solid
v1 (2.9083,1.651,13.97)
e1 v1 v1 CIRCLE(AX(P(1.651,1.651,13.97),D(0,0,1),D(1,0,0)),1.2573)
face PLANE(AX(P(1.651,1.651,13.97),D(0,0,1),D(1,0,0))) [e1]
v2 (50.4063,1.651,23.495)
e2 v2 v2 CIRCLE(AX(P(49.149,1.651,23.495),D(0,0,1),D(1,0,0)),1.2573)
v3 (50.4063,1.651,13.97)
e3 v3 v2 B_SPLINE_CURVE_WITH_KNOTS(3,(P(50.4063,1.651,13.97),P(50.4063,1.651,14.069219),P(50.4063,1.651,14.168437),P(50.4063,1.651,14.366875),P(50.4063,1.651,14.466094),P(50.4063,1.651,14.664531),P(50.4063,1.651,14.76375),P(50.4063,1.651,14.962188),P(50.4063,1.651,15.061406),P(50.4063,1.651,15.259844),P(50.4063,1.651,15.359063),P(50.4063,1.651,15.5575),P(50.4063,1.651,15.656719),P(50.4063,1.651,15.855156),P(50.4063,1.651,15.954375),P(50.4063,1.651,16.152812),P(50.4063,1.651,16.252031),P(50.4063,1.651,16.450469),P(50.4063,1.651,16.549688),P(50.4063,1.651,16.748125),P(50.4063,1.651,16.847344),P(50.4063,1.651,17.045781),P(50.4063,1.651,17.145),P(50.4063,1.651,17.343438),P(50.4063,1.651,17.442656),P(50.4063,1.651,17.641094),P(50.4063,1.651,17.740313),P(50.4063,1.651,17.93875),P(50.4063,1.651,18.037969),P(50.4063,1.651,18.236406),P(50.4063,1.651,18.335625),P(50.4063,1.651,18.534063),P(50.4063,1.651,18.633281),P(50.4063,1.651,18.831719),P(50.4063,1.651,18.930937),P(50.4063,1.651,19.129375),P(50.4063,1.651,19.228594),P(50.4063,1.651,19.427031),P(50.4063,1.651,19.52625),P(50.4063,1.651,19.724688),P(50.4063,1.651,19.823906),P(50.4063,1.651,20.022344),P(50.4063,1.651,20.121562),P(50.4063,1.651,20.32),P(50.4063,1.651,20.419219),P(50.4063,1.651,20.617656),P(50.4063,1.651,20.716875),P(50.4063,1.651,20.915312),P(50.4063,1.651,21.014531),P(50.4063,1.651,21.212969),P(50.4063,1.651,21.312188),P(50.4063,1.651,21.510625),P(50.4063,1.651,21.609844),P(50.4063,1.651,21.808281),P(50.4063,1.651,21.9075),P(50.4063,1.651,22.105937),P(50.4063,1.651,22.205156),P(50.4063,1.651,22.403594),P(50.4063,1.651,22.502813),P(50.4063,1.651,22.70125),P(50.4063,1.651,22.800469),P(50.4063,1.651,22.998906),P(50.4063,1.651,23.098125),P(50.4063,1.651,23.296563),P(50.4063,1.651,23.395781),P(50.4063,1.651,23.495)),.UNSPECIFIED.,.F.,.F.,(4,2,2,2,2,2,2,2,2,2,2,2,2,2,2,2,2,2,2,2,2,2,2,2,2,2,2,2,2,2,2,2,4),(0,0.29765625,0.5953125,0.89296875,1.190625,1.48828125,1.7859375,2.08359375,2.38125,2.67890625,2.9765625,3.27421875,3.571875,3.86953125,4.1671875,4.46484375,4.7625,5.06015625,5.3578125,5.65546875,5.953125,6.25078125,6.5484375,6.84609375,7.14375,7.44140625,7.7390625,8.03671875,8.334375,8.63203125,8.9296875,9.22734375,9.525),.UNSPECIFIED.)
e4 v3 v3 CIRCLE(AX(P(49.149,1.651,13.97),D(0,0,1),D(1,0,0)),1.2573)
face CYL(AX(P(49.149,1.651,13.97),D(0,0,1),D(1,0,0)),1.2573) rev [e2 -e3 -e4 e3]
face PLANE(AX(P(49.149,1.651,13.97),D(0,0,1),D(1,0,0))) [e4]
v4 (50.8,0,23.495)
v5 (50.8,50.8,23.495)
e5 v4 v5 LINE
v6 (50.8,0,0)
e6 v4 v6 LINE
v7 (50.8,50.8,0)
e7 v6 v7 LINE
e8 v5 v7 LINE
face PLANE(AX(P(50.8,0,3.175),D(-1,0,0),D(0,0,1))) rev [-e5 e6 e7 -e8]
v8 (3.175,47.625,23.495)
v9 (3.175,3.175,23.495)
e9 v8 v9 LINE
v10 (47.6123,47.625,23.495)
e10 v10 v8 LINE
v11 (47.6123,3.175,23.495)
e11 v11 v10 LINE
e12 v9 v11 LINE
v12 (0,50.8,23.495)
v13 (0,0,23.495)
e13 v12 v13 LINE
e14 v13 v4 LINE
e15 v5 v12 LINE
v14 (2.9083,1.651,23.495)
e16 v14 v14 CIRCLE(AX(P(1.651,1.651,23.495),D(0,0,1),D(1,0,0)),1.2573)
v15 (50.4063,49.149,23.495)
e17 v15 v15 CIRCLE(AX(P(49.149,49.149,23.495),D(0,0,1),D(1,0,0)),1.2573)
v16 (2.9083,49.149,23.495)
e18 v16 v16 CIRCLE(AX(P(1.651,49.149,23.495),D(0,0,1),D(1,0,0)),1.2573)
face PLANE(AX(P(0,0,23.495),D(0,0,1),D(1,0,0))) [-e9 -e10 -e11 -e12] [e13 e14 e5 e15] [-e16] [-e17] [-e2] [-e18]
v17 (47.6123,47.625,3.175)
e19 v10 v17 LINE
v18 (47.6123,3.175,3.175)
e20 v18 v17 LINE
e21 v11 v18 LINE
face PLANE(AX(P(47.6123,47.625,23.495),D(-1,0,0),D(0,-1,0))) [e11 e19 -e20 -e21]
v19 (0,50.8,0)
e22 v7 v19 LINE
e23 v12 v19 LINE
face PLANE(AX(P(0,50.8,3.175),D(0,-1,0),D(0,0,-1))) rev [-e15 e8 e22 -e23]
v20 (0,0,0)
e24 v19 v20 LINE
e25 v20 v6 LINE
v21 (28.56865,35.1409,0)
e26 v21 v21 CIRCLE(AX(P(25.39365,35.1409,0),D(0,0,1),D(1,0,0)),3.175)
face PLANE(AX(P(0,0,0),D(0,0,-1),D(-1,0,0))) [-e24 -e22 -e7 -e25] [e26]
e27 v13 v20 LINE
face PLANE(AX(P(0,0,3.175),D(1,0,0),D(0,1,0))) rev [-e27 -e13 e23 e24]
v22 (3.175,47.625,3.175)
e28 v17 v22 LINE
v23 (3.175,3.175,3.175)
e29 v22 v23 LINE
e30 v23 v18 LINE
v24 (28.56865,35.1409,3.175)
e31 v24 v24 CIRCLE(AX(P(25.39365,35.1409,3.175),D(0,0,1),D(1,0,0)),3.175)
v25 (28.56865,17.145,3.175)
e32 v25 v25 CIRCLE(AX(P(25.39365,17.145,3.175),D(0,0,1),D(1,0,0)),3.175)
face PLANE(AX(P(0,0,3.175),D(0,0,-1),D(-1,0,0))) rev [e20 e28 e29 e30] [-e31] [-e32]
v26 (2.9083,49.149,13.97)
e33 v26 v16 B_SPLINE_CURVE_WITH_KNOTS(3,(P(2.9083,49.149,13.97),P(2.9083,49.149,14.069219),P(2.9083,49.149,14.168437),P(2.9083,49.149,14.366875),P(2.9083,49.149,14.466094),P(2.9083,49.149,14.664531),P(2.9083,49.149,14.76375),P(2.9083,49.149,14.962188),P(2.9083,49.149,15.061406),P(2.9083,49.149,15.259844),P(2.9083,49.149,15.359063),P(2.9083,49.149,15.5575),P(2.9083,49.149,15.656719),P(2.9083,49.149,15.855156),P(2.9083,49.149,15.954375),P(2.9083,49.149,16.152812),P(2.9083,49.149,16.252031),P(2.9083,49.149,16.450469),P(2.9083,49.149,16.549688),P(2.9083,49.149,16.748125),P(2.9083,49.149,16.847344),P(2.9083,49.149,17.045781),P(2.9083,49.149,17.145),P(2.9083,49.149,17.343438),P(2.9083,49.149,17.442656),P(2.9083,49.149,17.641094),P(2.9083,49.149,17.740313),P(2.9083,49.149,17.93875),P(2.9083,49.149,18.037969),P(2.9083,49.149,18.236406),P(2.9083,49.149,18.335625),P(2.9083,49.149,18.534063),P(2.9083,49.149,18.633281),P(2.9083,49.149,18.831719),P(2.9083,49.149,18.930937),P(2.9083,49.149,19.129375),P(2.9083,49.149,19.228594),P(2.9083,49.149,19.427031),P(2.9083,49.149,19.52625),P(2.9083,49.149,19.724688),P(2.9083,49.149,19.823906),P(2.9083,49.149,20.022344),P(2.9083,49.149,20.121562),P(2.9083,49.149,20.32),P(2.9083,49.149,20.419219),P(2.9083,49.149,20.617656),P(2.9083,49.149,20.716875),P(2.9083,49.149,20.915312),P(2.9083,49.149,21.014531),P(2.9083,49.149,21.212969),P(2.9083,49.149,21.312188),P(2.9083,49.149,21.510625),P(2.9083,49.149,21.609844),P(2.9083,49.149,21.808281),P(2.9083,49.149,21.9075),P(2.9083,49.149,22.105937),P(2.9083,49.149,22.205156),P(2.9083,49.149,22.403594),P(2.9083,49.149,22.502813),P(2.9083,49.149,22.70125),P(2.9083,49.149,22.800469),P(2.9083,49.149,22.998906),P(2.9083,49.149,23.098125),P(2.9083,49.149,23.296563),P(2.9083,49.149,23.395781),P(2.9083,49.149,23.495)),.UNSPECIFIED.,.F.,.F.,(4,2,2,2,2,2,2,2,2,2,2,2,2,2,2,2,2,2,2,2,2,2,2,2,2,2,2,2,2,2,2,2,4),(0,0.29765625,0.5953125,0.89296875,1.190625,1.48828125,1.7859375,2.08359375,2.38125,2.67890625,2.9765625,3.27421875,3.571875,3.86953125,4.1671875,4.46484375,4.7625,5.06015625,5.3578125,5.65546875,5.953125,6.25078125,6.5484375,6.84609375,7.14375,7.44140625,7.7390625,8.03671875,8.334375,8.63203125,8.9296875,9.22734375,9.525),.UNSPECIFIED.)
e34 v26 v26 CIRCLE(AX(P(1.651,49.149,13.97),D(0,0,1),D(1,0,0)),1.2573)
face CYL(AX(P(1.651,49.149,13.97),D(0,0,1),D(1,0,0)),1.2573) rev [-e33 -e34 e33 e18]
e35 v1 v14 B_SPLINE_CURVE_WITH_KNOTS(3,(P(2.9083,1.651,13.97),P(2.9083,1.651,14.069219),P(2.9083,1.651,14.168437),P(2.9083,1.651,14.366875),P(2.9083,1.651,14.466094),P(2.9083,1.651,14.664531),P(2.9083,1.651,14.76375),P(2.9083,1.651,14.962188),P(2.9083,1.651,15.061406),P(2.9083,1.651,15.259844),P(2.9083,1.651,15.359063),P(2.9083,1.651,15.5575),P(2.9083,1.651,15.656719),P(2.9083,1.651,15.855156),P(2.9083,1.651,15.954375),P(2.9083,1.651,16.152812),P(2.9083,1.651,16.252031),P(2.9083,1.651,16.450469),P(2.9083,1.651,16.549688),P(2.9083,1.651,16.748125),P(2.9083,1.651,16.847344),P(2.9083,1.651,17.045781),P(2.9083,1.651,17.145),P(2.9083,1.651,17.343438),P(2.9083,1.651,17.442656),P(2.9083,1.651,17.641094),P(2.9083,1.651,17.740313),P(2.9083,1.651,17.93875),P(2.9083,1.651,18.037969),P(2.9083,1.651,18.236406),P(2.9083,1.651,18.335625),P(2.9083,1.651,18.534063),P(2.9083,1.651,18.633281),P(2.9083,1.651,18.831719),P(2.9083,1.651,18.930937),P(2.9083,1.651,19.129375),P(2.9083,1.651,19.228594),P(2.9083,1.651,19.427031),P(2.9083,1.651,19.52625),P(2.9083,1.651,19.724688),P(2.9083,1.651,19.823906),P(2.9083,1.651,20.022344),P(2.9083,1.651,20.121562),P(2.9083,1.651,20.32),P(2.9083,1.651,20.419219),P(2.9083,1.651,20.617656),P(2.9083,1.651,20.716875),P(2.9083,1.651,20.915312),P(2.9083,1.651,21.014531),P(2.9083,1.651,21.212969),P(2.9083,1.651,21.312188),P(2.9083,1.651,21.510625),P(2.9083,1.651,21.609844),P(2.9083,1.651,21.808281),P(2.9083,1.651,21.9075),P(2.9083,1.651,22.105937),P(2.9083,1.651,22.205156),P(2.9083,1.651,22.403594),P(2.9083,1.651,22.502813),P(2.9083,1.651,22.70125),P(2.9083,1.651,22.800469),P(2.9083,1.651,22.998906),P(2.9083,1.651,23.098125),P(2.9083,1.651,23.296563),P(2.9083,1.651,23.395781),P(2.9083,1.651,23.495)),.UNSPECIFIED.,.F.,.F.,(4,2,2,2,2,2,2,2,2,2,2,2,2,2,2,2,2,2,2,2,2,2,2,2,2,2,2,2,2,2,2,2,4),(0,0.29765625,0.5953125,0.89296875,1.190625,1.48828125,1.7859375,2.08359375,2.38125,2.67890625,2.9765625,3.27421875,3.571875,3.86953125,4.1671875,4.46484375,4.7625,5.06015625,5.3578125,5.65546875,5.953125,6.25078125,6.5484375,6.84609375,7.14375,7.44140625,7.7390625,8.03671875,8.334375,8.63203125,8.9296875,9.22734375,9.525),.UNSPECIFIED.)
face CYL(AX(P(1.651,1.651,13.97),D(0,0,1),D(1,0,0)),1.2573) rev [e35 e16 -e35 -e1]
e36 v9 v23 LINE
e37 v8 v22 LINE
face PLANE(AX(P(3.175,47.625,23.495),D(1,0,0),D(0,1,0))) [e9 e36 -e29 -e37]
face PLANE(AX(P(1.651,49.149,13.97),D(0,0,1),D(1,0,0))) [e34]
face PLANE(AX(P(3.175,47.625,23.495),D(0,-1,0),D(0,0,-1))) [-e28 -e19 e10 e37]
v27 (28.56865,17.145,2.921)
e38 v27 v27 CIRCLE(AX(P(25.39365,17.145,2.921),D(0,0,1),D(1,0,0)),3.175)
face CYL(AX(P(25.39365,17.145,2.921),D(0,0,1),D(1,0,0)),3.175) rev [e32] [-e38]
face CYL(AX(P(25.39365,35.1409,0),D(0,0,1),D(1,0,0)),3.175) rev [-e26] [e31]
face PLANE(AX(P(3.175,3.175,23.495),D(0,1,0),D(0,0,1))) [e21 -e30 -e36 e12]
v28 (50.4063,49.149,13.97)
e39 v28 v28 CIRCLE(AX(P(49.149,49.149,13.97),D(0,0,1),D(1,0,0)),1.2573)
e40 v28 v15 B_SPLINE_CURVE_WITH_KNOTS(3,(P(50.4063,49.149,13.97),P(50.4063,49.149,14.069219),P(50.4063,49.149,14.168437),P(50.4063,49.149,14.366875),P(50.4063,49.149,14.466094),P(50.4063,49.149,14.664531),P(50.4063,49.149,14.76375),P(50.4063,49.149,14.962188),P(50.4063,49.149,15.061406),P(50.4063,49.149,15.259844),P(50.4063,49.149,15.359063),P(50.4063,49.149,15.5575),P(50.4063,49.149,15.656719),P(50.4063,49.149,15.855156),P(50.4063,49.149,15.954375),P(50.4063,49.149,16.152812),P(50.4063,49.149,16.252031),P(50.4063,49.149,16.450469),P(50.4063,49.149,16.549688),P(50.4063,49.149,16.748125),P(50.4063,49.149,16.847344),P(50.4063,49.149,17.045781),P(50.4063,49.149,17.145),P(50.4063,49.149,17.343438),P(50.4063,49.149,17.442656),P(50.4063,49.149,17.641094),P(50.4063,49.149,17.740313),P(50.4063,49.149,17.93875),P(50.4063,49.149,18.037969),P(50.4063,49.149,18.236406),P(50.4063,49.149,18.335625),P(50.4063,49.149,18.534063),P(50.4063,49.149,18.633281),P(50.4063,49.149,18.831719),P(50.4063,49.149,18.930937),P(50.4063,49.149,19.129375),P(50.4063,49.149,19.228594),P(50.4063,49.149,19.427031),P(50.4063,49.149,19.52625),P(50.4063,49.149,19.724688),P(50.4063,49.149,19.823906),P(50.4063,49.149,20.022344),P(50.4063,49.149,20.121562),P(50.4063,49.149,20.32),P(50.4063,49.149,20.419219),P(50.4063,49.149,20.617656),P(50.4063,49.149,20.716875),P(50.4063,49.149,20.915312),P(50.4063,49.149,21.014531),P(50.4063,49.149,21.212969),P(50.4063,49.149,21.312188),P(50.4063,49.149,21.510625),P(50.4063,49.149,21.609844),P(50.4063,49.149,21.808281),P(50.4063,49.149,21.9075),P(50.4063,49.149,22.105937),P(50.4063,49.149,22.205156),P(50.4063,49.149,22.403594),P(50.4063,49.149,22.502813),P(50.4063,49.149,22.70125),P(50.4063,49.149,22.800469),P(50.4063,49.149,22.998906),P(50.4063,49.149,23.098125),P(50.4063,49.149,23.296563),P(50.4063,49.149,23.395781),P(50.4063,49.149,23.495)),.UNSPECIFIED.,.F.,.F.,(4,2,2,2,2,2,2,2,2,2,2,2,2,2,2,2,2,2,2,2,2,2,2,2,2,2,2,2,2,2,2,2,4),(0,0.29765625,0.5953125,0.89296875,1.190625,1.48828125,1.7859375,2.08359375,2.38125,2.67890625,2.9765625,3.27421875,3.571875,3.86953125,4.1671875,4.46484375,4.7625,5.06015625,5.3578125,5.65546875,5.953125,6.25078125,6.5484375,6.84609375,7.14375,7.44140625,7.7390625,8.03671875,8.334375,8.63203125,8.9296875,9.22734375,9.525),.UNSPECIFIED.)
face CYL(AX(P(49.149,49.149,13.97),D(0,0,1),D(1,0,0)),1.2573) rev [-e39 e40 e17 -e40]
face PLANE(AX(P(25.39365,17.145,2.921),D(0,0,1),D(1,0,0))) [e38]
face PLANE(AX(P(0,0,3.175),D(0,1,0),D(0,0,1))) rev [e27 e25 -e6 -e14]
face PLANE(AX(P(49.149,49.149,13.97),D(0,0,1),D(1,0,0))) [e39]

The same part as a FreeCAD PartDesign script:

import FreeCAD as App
import Part
import Sketcher

V = App.Vector
Q = App.Units.Quantity


def add_polygon(sketch, points):
    """Adds a closed chain of lines whose ends are joined by coincident constraints."""
    first, n = sketch.GeometryCount, len(points)
    for a, b in zip(points, points[1:] + points[:1]):
        sketch.addGeometry(Part.LineSegment(App.Vector(*a, 0), App.Vector(*b, 0)), False)
    for i in range(n):
        sketch.addConstraint(Sketcher.Constraint("Coincident", first + i, 2, first + (i + 1) % n, 1))

doc = App.newDocument("Part")
params = doc.addObject("Spreadsheet::Sheet", "Params")
for row, (alias, value) in enumerate([
    ("sketch1_width", "2 in"),
    ("pad1_length", "0.125 in"),
    ("sketch2_width", "2 in"),
    ("sketch2_height", "1.75 in"),
    ("pad2_length", "0.8 in"),
    ("sketch3_diameter", "0.25 in"),
    ("pocket1_length", "0.01 in"),
    ("sketch4_diameter", "0.099 in"),
    ("pocket2_length", "0.375 in"),
    ("sketch5_diameter", "0.25 in"),
], start=1):
    params.set(f"A{row}", alias)
    params.set(f"B{row}", "=" + value)
    params.setAlias(f"B{row}", alias)

body = doc.addObject("PartDesign::Body", "Body")

sketch1 = doc.addObject("Sketcher::SketchObject", "Sketch")
body.addObject(sketch1)
sketch1.AttachmentSupport = (doc.XY_Plane, [""])
sketch1.MapMode = "FlatFace"
add_polygon(sketch1, [(0, 51), (0, 0), (51, 0), (51, 51)])
sketch1.addConstraint(Sketcher.Constraint("Vertical", 0))
sketch1.addConstraint(Sketcher.Constraint("Horizontal", 1))
sketch1.addConstraint(Sketcher.Constraint("Vertical", 2))
sketch1.addConstraint(Sketcher.Constraint("Horizontal", 3))
sketch1.addConstraint(Sketcher.Constraint("Coincident", 0, 2, -1, 1))
sketch1.addConstraint(Sketcher.Constraint("Equal", 3, 0))
sketch1.addConstraint(Sketcher.Constraint("DistanceX", 1, 1, 1, 2, Q("2 in")))
sketch1.setExpression("Constraints[10]", "Params.sketch1_width")
pad1 = doc.addObject("PartDesign::Pad", "Pad")
body.addObject(pad1)
pad1.Profile = sketch1
pad1.setExpression("Length", "Params.pad1_length")

sketch2 = doc.addObject("Sketcher::SketchObject", "Sketch001")
body.addObject(sketch2)
sketch2.AttachmentSupport = (doc.XY_Plane, [""])
sketch2.MapMode = "FlatFace"
sketch2.AttachmentOffset = App.Placement(V(0, 0, 0.125 * 25.4), App.Rotation())
add_polygon(sketch2, [(0, 51), (0, 0), (51, 0), (51, 51)])
add_polygon(sketch2, [(48, 3), (3, 3), (3, 48), (48, 48)])
sketch2.addConstraint(Sketcher.Constraint("Vertical", 0))
sketch2.addConstraint(Sketcher.Constraint("Horizontal", 1))
sketch2.addConstraint(Sketcher.Constraint("Vertical", 2))
sketch2.addConstraint(Sketcher.Constraint("Horizontal", 3))
sketch2.addConstraint(Sketcher.Constraint("Horizontal", 4))
sketch2.addConstraint(Sketcher.Constraint("Vertical", 5))
sketch2.addConstraint(Sketcher.Constraint("Horizontal", 6))
sketch2.addConstraint(Sketcher.Constraint("Vertical", 7))
sketch2.addConstraint(Sketcher.Constraint("Coincident", 0, 2, -1, 1))
sketch2.addConstraint(Sketcher.Constraint("Equal", 3, 0))
sketch2.addConstraint(Sketcher.Constraint("DistanceX", 1, 1, 1, 2, Q("2 in")))
sketch2.addConstraint(Sketcher.Constraint("DistanceY", 5, 1, 5, 2, Q("1.75 in")))
sketch2.addConstraint(Sketcher.Constraint("DistanceX", 4, 2, 4, 1, Q("1.7495 in")))
sketch2.addConstraint(Sketcher.Constraint("DistanceX", -1, 1, 4, 2, Q("0.125 in")))
sketch2.addConstraint(Sketcher.Constraint("DistanceY", -1, 1, 4, 2, Q("0.125 in")))
sketch2.setExpression("Constraints[18]", "Params.sketch2_width")
sketch2.setExpression("Constraints[19]", "Params.sketch2_height")
pad2 = doc.addObject("PartDesign::Pad", "Pad001")
body.addObject(pad2)
pad2.Profile = sketch2
pad2.setExpression("Length", "Params.pad2_length")

sketch3 = doc.addObject("Sketcher::SketchObject", "Sketch002")
body.addObject(sketch3)
sketch3.AttachmentSupport = (doc.XY_Plane, [""])
sketch3.MapMode = "FlatFace"
sketch3.AttachmentOffset = App.Placement(V(0, 0, 0.125 * 25.4), App.Rotation())
sketch3.addGeometry(Part.Circle(V(25.4, 17.1, 0), V(0, 0, 1), 3.2), False)
sketch3.addConstraint(Sketcher.Constraint("Diameter", 0, Q("0.25 in")))
sketch3.addConstraint(Sketcher.Constraint("DistanceY", -1, 1, 0, 3, Q("0.675 in")))
sketch3.addConstraint(Sketcher.Constraint("DistanceX", -1, 1, 0, 3, Q("25.39365 mm")))
sketch3.setExpression("Constraints[0]", "Params.sketch3_diameter")
pocket1 = doc.addObject("PartDesign::Pocket", "Pocket")
body.addObject(pocket1)
pocket1.Profile = sketch3
pocket1.setExpression("Length", "Params.pocket1_length")

sketch4 = doc.addObject("Sketcher::SketchObject", "Sketch003")
body.addObject(sketch4)
sketch4.AttachmentSupport = (doc.XY_Plane, [""])
sketch4.MapMode = "FlatFace"
sketch4.AttachmentOffset = App.Placement(V(0, 0, 0.925 * 25.4), App.Rotation())
sketch4.addGeometry(Part.Circle(V(1.7, 49.1, 0), V(0, 0, 1), 1.3), False)
sketch4.addGeometry(Part.Circle(V(49.1, 49.1, 0), V(0, 0, 1), 1.3), False)
sketch4.addGeometry(Part.Circle(V(49.1, 1.7, 0), V(0, 0, 1), 1.3), False)
sketch4.addGeometry(Part.Circle(V(1.7, 1.7, 0), V(0, 0, 1), 1.3), False)
sketch4.addConstraint(Sketcher.Constraint("Equal", 0, 1))
sketch4.addConstraint(Sketcher.Constraint("Equal", 1, 2))
sketch4.addConstraint(Sketcher.Constraint("Equal", 2, 3))
sketch4.addConstraint(Sketcher.Constraint("Horizontal", 0, 3, 1, 3))
sketch4.addConstraint(Sketcher.Constraint("Horizontal", 2, 3, 3, 3))
sketch4.addConstraint(Sketcher.Constraint("Vertical", 1, 3, 2, 3))
sketch4.addConstraint(Sketcher.Constraint("Vertical", 0, 3, 3, 3))
sketch4.addConstraint(Sketcher.Constraint("Diameter", 0, Q("0.099 in")))
sketch4.addConstraint(Sketcher.Constraint("DistanceX", 0, 3, 1, 3, Q("1.87 in")))
sketch4.addConstraint(Sketcher.Constraint("DistanceY", 2, 3, 1, 3, Q("1.87 in")))
sketch4.addConstraint(Sketcher.Constraint("DistanceX", -1, 1, 0, 3, Q("0.065 in")))
sketch4.addConstraint(Sketcher.Constraint("DistanceY", -1, 1, 0, 3, Q("1.935 in")))
sketch4.setExpression("Constraints[7]", "Params.sketch4_diameter")
pocket2 = doc.addObject("PartDesign::Pocket", "Pocket001")
body.addObject(pocket2)
pocket2.Profile = sketch4
pocket2.setExpression("Length", "Params.pocket2_length")

sketch5 = doc.addObject("Sketcher::SketchObject", "Sketch004")
body.addObject(sketch5)
sketch5.AttachmentSupport = (doc.XY_Plane, [""])
sketch5.MapMode = "FlatFace"
sketch5.AttachmentOffset = App.Placement(V(0, 0, 0.125 * 25.4), App.Rotation())
sketch5.addGeometry(Part.Circle(V(25.4, 35.1, 0), V(0, 0, 1), 3.2), False)
sketch5.addConstraint(Sketcher.Constraint("Diameter", 0, Q("0.25 in")))
sketch5.addConstraint(Sketcher.Constraint("DistanceY", -1, 1, 0, 3, Q("1.3835 in")))
sketch5.addConstraint(Sketcher.Constraint("DistanceX", -1, 1, 0, 3, Q("25.39365 mm")))
sketch5.setExpression("Constraints[0]", "Params.sketch5_diameter")
pocket3 = doc.addObject("PartDesign::Pocket", "Pocket002")
body.addObject(pocket3)
pocket3.Profile = sketch5
pocket3.Type = "ThroughAll"

doc.recompute()
